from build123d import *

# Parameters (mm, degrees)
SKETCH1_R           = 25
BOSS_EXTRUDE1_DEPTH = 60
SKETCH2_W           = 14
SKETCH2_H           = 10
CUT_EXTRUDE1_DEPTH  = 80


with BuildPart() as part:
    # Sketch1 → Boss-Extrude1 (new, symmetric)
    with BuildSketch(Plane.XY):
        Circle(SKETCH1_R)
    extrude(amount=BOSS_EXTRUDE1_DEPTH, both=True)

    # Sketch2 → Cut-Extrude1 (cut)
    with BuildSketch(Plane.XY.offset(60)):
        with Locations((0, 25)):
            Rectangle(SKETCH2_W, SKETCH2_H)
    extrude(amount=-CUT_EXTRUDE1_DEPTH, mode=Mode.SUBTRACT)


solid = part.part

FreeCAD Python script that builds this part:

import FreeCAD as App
import Part
import Sketcher

V = App.Vector
Q = App.Units.Quantity


def add_polygon(sketch, points):
    """Adds a closed chain of lines whose ends are joined by coincident constraints."""
    first, n = sketch.GeometryCount, len(points)
    for a, b in zip(points, points[1:] + points[:1]):
        sketch.addGeometry(Part.LineSegment(App.Vector(*a, 0), App.Vector(*b, 0)), False)
    for i in range(n):
        sketch.addConstraint(Sketcher.Constraint("Coincident", first + i, 2, first + (i + 1) % n, 1))

doc = App.newDocument("Part")
body = doc.addObject("PartDesign::Body", "Body")

sketch1 = body.newObject("Sketcher::SketchObject", "Sketch")
sketch1.AttachmentSupport = (doc.getObject("XY_Plane"), [""])
sketch1.MapMode = "FlatFace"
sketch1.addGeometry(Part.Circle(V(0, 0, 0), V(0, 0, 1), 25), False)
sketch1.addConstraint([
    Sketcher.Constraint("Coincident", 0, 3, -1, 1),
    Sketcher.Constraint("Diameter", 0, Q("50 mm")),
])
pad1 = body.newObject("PartDesign::Pad", "Pad")
pad1.Profile = sketch1
pad1.Length = 120
pad1.Midplane = True

sketch2 = body.newObject("Sketcher::SketchObject", "Sketch001")
sketch2.AttachmentSupport = (doc.getObject("XY_Plane"), [""])
sketch2.MapMode = "FlatFace"
sketch2.AttachmentOffset = App.Placement(V(0, 0, 60), App.Rotation())
add_polygon(sketch2, [(-7, 30), (-7, 20), (7, 20), (7, 30)])
sketch2.addConstraint([
    Sketcher.Constraint("Vertical", 0),
    Sketcher.Constraint("Horizontal", 1),
    Sketcher.Constraint("Vertical", 2),
    Sketcher.Constraint("Horizontal", 3),
    Sketcher.Constraint("DistanceX", 1, 1, 1, 2, Q("14 mm")),
    Sketcher.Constraint("DistanceY", 0, 2, 0, 1, Q("10 mm")),
    Sketcher.Constraint("DistanceX", 0, 2, -1, 1, Q("7 mm")),
    Sketcher.Constraint("DistanceY", -1, 1, 0, 2, Q("20 mm")),
])
pocket1 = body.newObject("PartDesign::Pocket", "Pocket")
pocket1.Profile = sketch2
pocket1.Length = 80

doc.recompute()
